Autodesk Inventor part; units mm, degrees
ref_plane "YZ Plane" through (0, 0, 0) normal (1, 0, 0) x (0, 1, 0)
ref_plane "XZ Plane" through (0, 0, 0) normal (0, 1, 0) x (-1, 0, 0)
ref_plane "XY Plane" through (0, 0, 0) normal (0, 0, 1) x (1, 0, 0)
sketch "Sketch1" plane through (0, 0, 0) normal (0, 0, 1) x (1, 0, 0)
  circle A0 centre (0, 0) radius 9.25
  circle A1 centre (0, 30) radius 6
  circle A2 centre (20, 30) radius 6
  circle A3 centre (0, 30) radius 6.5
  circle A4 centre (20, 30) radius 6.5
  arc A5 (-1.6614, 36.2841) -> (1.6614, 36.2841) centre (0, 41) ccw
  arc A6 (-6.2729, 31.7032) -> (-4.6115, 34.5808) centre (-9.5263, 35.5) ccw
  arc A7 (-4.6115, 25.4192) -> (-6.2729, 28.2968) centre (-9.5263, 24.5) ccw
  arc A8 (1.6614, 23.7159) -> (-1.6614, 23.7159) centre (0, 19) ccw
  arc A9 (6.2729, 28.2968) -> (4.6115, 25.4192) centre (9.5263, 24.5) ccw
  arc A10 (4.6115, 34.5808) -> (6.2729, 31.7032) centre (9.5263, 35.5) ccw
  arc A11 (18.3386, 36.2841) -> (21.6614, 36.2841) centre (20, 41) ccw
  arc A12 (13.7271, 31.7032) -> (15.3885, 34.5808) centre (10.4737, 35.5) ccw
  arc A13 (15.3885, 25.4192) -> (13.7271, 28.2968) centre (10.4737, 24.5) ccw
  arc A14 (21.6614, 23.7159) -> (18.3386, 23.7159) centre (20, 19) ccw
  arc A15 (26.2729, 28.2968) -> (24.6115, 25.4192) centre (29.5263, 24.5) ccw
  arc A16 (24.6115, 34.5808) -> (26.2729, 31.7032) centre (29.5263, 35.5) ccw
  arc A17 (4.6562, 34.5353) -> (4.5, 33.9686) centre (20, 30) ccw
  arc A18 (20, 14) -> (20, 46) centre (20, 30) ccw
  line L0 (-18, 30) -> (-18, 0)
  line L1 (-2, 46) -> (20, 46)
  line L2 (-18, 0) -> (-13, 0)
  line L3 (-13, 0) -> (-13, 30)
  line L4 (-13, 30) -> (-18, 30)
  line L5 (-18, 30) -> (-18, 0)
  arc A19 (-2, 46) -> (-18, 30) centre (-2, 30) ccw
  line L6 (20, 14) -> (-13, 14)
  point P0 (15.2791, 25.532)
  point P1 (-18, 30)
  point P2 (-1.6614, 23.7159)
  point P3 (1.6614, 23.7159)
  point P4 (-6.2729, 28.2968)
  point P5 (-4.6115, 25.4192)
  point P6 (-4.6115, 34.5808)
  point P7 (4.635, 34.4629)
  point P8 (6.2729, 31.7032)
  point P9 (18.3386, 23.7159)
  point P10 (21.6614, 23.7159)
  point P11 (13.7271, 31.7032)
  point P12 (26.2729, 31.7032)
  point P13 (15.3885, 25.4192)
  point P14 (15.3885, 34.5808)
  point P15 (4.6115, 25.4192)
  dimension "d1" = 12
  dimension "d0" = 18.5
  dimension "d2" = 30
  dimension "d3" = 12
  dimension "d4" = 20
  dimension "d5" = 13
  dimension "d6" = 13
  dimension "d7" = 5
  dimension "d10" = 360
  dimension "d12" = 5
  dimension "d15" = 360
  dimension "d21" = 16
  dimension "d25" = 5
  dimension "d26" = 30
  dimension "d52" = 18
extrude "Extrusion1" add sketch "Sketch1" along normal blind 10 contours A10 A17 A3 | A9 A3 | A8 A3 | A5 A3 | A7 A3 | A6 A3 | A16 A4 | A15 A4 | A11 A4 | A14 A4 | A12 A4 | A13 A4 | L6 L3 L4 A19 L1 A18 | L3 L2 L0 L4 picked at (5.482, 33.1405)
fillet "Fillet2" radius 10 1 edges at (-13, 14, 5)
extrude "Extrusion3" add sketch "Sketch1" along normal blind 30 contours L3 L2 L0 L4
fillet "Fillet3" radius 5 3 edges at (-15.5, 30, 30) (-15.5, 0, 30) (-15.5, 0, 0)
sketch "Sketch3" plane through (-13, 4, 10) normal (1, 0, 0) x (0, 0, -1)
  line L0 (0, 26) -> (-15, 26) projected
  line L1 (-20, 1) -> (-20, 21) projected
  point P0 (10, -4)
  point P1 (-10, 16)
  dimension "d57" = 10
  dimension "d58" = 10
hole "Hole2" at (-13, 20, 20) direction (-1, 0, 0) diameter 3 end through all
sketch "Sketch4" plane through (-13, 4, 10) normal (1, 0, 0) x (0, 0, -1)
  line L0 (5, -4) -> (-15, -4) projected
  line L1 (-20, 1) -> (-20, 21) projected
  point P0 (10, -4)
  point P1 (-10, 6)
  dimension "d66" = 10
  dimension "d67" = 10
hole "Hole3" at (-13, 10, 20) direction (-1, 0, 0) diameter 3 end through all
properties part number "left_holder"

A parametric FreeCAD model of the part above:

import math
import FreeCAD as App
import Part
import Sketcher

V = App.Vector
Q = App.Units.Quantity


def edges_at(feature, points):
    """Names of the edges that pass closest to the given points."""
    edges = feature.Shape.Edges
    near = lambda p: min(range(len(edges)), key=lambda i: edges[i].distToShape(Part.Vertex(*p))[0])
    return sorted({f"Edge{near(p) + 1}" for p in points})

doc = App.newDocument("Part")
body = doc.addObject("PartDesign::Body", "Body")

sketch1 = doc.addObject("Sketcher::SketchObject", "Sketch")
body.addObject(sketch1)
sketch1.AttachmentSupport = (doc.XY_Plane, [""])
sketch1.MapMode = "FlatFace"
sketch1.addGeometry([
    Part.LineSegment(V(-13, 14, 0), V(20, 14, 0)),
    Part.ArcOfCircle(Part.Circle(V(20, 30, 0), V(0, 0, 1), 16), math.radians(-90), math.radians(90)),
    Part.LineSegment(V(20, 46, 0), V(-2, 46, 0)),
    Part.ArcOfCircle(Part.Circle(V(-2, 30, 0), V(0, 0, 1), 16), math.radians(90), math.radians(180)),
    Part.LineSegment(V(-18, 30, 0), V(-18, 0, 0)),
    Part.LineSegment(V(-18, 0, 0), V(-13, 0, 0)),
    Part.LineSegment(V(-13, 0, 0), V(-13, 14, 0)),
    Part.ArcOfCircle(Part.Circle(V(9.53, 35.5, 0), V(0, 0, 1), 5), math.radians(-168), math.radians(-131)),
    Part.ArcOfCircle(Part.Circle(V(0, 30, 0), V(0, 0, 1), 6.5), math.radians(-15), math.radians(15)),
    Part.ArcOfCircle(Part.Circle(V(9.53, 24.5, 0), V(0, 0, 1), 5), math.radians(131), math.radians(169)),
    Part.ArcOfCircle(Part.Circle(V(0, 30, 0), V(0, 0, 1), 6.5), math.radians(-75), math.radians(-45)),
    Part.ArcOfCircle(Part.Circle(V(0, 19, 0), V(0, 0, 1), 5), math.radians(71), math.radians(109)),
    Part.ArcOfCircle(Part.Circle(V(0, 30, 0), V(0, 0, 1), 6.5), math.radians(-135), math.radians(-105)),
    Part.ArcOfCircle(Part.Circle(V(-9.53, 24.5, 0), V(0, 0, 1), 5), math.radians(11), math.radians(49)),
    Part.ArcOfCircle(Part.Circle(V(0, 30, 0), V(0, 0, 1), 6.5), math.radians(165), math.radians(195)),
    Part.ArcOfCircle(Part.Circle(V(-9.53, 35.5, 0), V(0, 0, 1), 5), math.radians(-49), math.radians(-11)),
    Part.ArcOfCircle(Part.Circle(V(0, 30, 0), V(0, 0, 1), 6.5), math.radians(105), math.radians(135)),
    Part.ArcOfCircle(Part.Circle(V(0, 41, 0), V(0, 0, 1), 5), math.radians(-109), math.radians(-71)),
    Part.ArcOfCircle(Part.Circle(V(0, 30, 0), V(0, 0, 1), 6.5), math.radians(44), math.radians(75)),
    Part.ArcOfCircle(Part.Circle(V(19.88, 30.03, 0), V(0, 0, 1), 15.88), math.radians(163.53), math.radians(163.8)),
    Part.ArcOfCircle(Part.Circle(V(20, 30, 0), V(0, 0, 1), 6.5), math.radians(45), math.radians(75)),
    Part.ArcOfCircle(Part.Circle(V(29.53, 35.5, 0), V(0, 0, 1), 5), math.radians(-169), math.radians(-131)),
    Part.ArcOfCircle(Part.Circle(V(20, 30, 0), V(0, 0, 1), 6.5), math.radians(-15), math.radians(15)),
    Part.ArcOfCircle(Part.Circle(V(29.53, 24.5, 0), V(0, 0, 1), 5), math.radians(131), math.radians(169)),
    Part.ArcOfCircle(Part.Circle(V(20, 30, 0), V(0, 0, 1), 6.5), math.radians(-75), math.radians(-45)),
    Part.ArcOfCircle(Part.Circle(V(20, 19, 0), V(0, 0, 1), 5), math.radians(71), math.radians(109)),
    Part.ArcOfCircle(Part.Circle(V(20, 30, 0), V(0, 0, 1), 6.5), math.radians(-135), math.radians(-105)),
    Part.ArcOfCircle(Part.Circle(V(10.47, 24.5, 0), V(0, 0, 1), 5), math.radians(11), math.radians(49)),
    Part.ArcOfCircle(Part.Circle(V(20, 30, 0), V(0, 0, 1), 6.5), math.radians(165), math.radians(195)),
    Part.ArcOfCircle(Part.Circle(V(10.47, 35.5, 0), V(0, 0, 1), 5), math.radians(-49), math.radians(-11)),
    Part.ArcOfCircle(Part.Circle(V(20, 30, 0), V(0, 0, 1), 6.5), math.radians(105), math.radians(135)),
    Part.ArcOfCircle(Part.Circle(V(20, 41, 0), V(0, 0, 1), 5), math.radians(-109), math.radians(-71)),
], False)
sketch1.addConstraint([
    Sketcher.Constraint("Tangent", 0, 2, 1, 1),
    Sketcher.Constraint("Tangent", 1, 2, 2, 1),
    Sketcher.Constraint("Tangent", 2, 2, 3, 1),
    Sketcher.Constraint("Tangent", 3, 2, 4, 1),
    Sketcher.Constraint("Coincident", 4, 2, 5, 1),
    Sketcher.Constraint("Coincident", 5, 2, 6, 1),
    Sketcher.Constraint("Coincident", 6, 2, 0, 1),
    Sketcher.Constraint("Coincident", 7, 2, 8, 2),
    Sketcher.Constraint("Coincident", 8, 1, 9, 1),
    Sketcher.Constraint("Coincident", 9, 2, 10, 2),
    Sketcher.Constraint("Coincident", 10, 1, 11, 1),
    Sketcher.Constraint("Coincident", 11, 2, 12, 2),
    Sketcher.Constraint("Coincident", 12, 1, 13, 1),
    Sketcher.Constraint("Coincident", 13, 2, 14, 2),
    Sketcher.Constraint("Coincident", 14, 1, 15, 1),
    Sketcher.Constraint("Coincident", 15, 2, 16, 2),
    Sketcher.Constraint("Coincident", 16, 1, 17, 1),
    Sketcher.Constraint("Coincident", 17, 2, 18, 2),
    Sketcher.Constraint("Coincident", 18, 1, 19, 1),
    Sketcher.Constraint("Coincident", 19, 2, 7, 1),
    Sketcher.Constraint("Coincident", 20, 1, 21, 1),
    Sketcher.Constraint("Coincident", 21, 2, 22, 2),
    Sketcher.Constraint("Coincident", 22, 1, 23, 1),
    Sketcher.Constraint("Coincident", 23, 2, 24, 2),
    Sketcher.Constraint("Coincident", 24, 1, 25, 1),
    Sketcher.Constraint("Coincident", 25, 2, 26, 2),
    Sketcher.Constraint("Coincident", 26, 1, 27, 1),
    Sketcher.Constraint("Coincident", 27, 2, 28, 2),
    Sketcher.Constraint("Coincident", 28, 1, 29, 1),
    Sketcher.Constraint("Coincident", 29, 2, 30, 2),
    Sketcher.Constraint("Coincident", 30, 1, 31, 1),
    Sketcher.Constraint("Coincident", 31, 2, 20, 2),
    Sketcher.Constraint("Horizontal", 0),
    Sketcher.Constraint("Horizontal", 2),
    Sketcher.Constraint("Vertical", 4),
    Sketcher.Constraint("Horizontal", 5),
    Sketcher.Constraint("Vertical", 6),
    Sketcher.Constraint("Coincident", 10, 3, 8, 3),
    Sketcher.Constraint("Coincident", 12, 3, 8, 3),
    Sketcher.Constraint("Coincident", 14, 3, 8, 3),
    Sketcher.Constraint("Coincident", 16, 3, 8, 3),
    Sketcher.Constraint("Coincident", 18, 3, 8, 3),
    Sketcher.Constraint("Coincident", 20, 3, 1, 3),
    Sketcher.Constraint("Coincident", 22, 3, 1, 3),
    Sketcher.Constraint("Coincident", 24, 3, 1, 3),
    Sketcher.Constraint("Coincident", 26, 3, 1, 3),
    Sketcher.Constraint("Coincident", 28, 3, 1, 3),
    Sketcher.Constraint("Coincident", 30, 3, 1, 3),
    Sketcher.Constraint("Equal", 1, 3),
    Sketcher.Constraint("Equal", 7, 9),
    Sketcher.Constraint("Equal", 8, 10),
    Sketcher.Constraint("Equal", 9, 11),
    Sketcher.Constraint("Equal", 10, 12),
    Sketcher.Constraint("Equal", 11, 13),
    Sketcher.Constraint("Equal", 12, 14),
    Sketcher.Constraint("Equal", 13, 15),
    Sketcher.Constraint("Equal", 14, 16),
    Sketcher.Constraint("Equal", 15, 17),
    Sketcher.Constraint("Equal", 16, 18),
    Sketcher.Constraint("Equal", 18, 20),
    Sketcher.Constraint("Equal", 17, 21),
    Sketcher.Constraint("Equal", 20, 22),
    Sketcher.Constraint("Equal", 21, 23),
    Sketcher.Constraint("Equal", 22, 24),
    Sketcher.Constraint("Equal", 23, 25),
    Sketcher.Constraint("Equal", 24, 26),
    Sketcher.Constraint("Equal", 25, 27),
    Sketcher.Constraint("Equal", 26, 28),
    Sketcher.Constraint("Equal", 27, 29),
    Sketcher.Constraint("Equal", 28, 30),
    Sketcher.Constraint("Equal", 29, 31),
    Sketcher.Constraint("Symmetric", 9, 3, 13, 3, -2),
    Sketcher.Constraint("Symmetric", 7, 3, 15, 3, -2),
    Sketcher.Constraint("Symmetric", 10, 1, 11, 2, -2),
    Sketcher.Constraint("PointOnObject", 17, 3, -2),
    Sketcher.Constraint("PointOnObject", 4, 2, -1),
    Sketcher.Constraint("Horizontal", 3, 3, 8, 3),
    Sketcher.Constraint("Horizontal", 15, 3, 21, 3),
    Sketcher.Constraint("Horizontal", 13, 3, 23, 3),
    Sketcher.Constraint("Horizontal", 11, 3, 25, 3),
    Sketcher.Constraint("Horizontal", 23, 3, 27, 3),
    Sketcher.Constraint("Horizontal", 21, 3, 29, 3),
    Sketcher.Constraint("Horizontal", 17, 3, 31, 3),
    Sketcher.Constraint("Horizontal", 15, 2, 20, 1),
    Sketcher.Constraint("Horizontal", 13, 2, 22, 1),
    Sketcher.Constraint("Horizontal", 11, 2, 24, 1),
    Sketcher.Constraint("Horizontal", 23, 2, 26, 1),
    Sketcher.Constraint("Horizontal", 21, 2, 28, 1),
    Sketcher.Constraint("Horizontal", 17, 2, 30, 1),
    Sketcher.Constraint("Vertical", 7, 3, 9, 3),
    Sketcher.Constraint("Vertical", 7, 2, 8, 1),
    Sketcher.Constraint("Vertical", 11, 2, 16, 1),
    Sketcher.Constraint("Radius", 1, Q("16 mm")),
    Sketcher.Constraint("Radius", 7, Q("5 mm")),
    Sketcher.Constraint("Radius", 8, Q("6.5 mm")),
    Sketcher.Constraint("DistanceX", 5, 1, 5, 2, Q("5 mm")),
    Sketcher.Constraint("DistanceY", 4, 2, 4, 1, Q("30 mm")),
    Sketcher.Constraint("DistanceX", -1, 1, 1, 3, Q("20 mm")),
    Sketcher.Constraint("DistanceX", 3, 2, -1, 1, Q("18 mm")),
    Sketcher.Constraint("DistanceY", 0, 2, 25, 3, Q("5 mm")),
    Sketcher.Constraint("DistanceY", 9, 3, 7, 3, Q("11 mm")),
    Sketcher.Constraint("Radius", 19, Q("15.8752 mm")),
    Sketcher.Constraint("DistanceX", -1, 1, 19, 3, Q("19.88 mm")),
    Sketcher.Constraint("DistanceX", 10, 1, 9, 2, Q("2.95 mm")),
    Sketcher.Constraint("DistanceX", 18, 1, 7, 3, Q("4.87 mm")),
])
pad1 = doc.addObject("PartDesign::Pad", "Pad")
body.addObject(pad1)
pad1.Profile = sketch1
pad1.Length = 10
doc.recompute()

fillet = doc.addObject("PartDesign::Fillet", "Fillet")
body.addObject(fillet)
fillet.Base = (pad1, edges_at(pad1, [(-13, 14, 5)]))
fillet.Radius = 10

sketch2 = doc.addObject("Sketcher::SketchObject", "Sketch001")
body.addObject(sketch2)
sketch2.AttachmentSupport = (doc.XY_Plane, [""])
sketch2.MapMode = "FlatFace"
sketch2.addGeometry([
    Part.LineSegment(V(-13, 0, 0), V(-13, 30, 0)),
    Part.LineSegment(V(-13, 30, 0), V(-18, 30, 0)),
    Part.LineSegment(V(-18, 30, 0), V(-18, 0, 0)),
    Part.LineSegment(V(-18, 0, 0), V(-13, 0, 0)),
], False)
sketch2.addConstraint([
    Sketcher.Constraint("Coincident", 0, 2, 1, 1),
    Sketcher.Constraint("Coincident", 1, 2, 2, 1),
    Sketcher.Constraint("Coincident", 2, 2, 3, 1),
    Sketcher.Constraint("Coincident", 3, 2, 0, 1),
    Sketcher.Constraint("Vertical", 0),
    Sketcher.Constraint("Horizontal", 1),
    Sketcher.Constraint("Vertical", 2),
    Sketcher.Constraint("Horizontal", 3),
    Sketcher.Constraint("PointOnObject", 2, 2, -1),
    Sketcher.Constraint("DistanceX", 1, 2, 1, 1, Q("5 mm")),
    Sketcher.Constraint("DistanceY", 0, 1, 0, 2, Q("30 mm")),
    Sketcher.Constraint("DistanceX", 0, 2, -1, 1, Q("13 mm")),
])
pad2 = doc.addObject("PartDesign::Pad", "Pad001")
body.addObject(pad2)
pad2.Profile = sketch2
pad2.Length = 30
doc.recompute()

fillet2 = doc.addObject("PartDesign::Fillet", "Fillet001")
body.addObject(fillet2)
fillet2.Base = (pad2, edges_at(pad2, [(-15.5, 30, 30), (-15.5, 0, 30), (-15.5, 0, 0)]))
fillet2.Radius = 5

sketch3 = doc.addObject("Sketcher::SketchObject", "Sketch002")
body.addObject(sketch3)
sketch3.AttachmentSupport = (doc.YZ_Plane, [""])
sketch3.MapMode = "FlatFace"
sketch3.AttachmentOffset = App.Placement(V(0, 0, -13), App.Rotation())
sketch3.addGeometry(Part.Circle(V(20, 20, 0), V(0, 0, 1), 1.5), False)
sketch3.addConstraint([
    Sketcher.Constraint("Diameter", 0, Q("3 mm")),
    Sketcher.Constraint("DistanceX", -1, 1, 0, 3, Q("20 mm")),
    Sketcher.Constraint("DistanceY", -1, 1, 0, 3, Q("20 mm")),
])
doc.recompute()
hole = doc.addObject("PartDesign::Hole", "Hole")
body.addObject(hole)
hole.Profile = sketch3
hole.ThreadType = "None"
hole.Diameter = 3
hole.DepthType = "ThroughAll"

sketch4 = doc.addObject("Sketcher::SketchObject", "Sketch003")
body.addObject(sketch4)
sketch4.AttachmentSupport = (doc.YZ_Plane, [""])
sketch4.MapMode = "FlatFace"
sketch4.AttachmentOffset = App.Placement(V(0, 0, -13), App.Rotation())
sketch4.addGeometry(Part.Circle(V(10, 20, 0), V(0, 0, 1), 1.5), False)
sketch4.addConstraint([
    Sketcher.Constraint("Diameter", 0, Q("3 mm")),
    Sketcher.Constraint("DistanceX", -1, 1, 0, 3, Q("10 mm")),
    Sketcher.Constraint("DistanceY", -1, 1, 0, 3, Q("20 mm")),
])
doc.recompute()
hole2 = doc.addObject("PartDesign::Hole", "Hole001")
body.addObject(hole2)
hole2.Profile = sketch4
hole2.ThreadType = "None"
hole2.Diameter = 3
hole2.DepthType = "ThroughAll"

doc.recompute()
